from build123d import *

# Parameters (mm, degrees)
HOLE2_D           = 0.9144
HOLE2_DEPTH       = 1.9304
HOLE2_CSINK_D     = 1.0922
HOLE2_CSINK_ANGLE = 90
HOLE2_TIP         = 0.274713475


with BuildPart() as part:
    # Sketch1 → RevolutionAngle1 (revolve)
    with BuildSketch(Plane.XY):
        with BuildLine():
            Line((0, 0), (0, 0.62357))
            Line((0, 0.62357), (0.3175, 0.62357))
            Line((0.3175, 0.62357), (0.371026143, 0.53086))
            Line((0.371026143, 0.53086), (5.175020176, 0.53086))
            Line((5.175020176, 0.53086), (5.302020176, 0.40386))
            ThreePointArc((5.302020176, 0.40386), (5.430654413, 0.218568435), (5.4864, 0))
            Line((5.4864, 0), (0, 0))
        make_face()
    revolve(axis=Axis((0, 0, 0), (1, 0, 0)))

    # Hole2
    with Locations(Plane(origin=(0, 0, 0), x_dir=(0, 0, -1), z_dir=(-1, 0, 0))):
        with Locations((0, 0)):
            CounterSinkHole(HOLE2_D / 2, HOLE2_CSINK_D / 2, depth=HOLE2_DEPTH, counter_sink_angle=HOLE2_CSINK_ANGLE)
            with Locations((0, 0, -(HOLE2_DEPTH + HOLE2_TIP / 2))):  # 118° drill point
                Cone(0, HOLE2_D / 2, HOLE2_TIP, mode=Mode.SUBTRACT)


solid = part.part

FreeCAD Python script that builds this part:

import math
import FreeCAD as App
import Part
import Sketcher
from FreeCAD import Vector
Q = App.Units.Quantity

doc = App.newDocument("Part")
body = doc.addObject("PartDesign::Body", "Body")

# Sketch on XY plane
sketch1 = doc.addObject("Sketcher::SketchObject", "Sketch")
body.addObject(sketch1)
sketch1.AttachmentSupport = (doc.XY_Plane, [""])
sketch1.MapMode = "FlatFace"
sketch1.addGeometry([
    Part.LineSegment(Vector(0, 0.62, 0), Vector(0, 0, 0)),  # 0
    Part.LineSegment(Vector(0, 0, 0), Vector(5.49, 0, 0)),  # 1
    Part.ArcOfCircle(Part.Circle(Vector(4.85, -0.05, 0), Vector(0, 0, 1), 0.64), math.radians(4), math.radians(45)),  # 2
    Part.LineSegment(Vector(5.3, 0.4, 0), Vector(5.18, 0.53, 0)),  # 3
    Part.LineSegment(Vector(5.18, 0.53, 0), Vector(0.37, 0.53, 0)),  # 4
    Part.LineSegment(Vector(0.37, 0.53, 0), Vector(0.32, 0.62, 0)),  # 5
    Part.LineSegment(Vector(0.32, 0.62, 0), Vector(0, 0.62, 0)),  # 6
], False)
sketch1.addConstraint([
    Sketcher.Constraint("Coincident", 0, 2, 1, 1),
    Sketcher.Constraint("Coincident", 1, 2, 2, 1),
    Sketcher.Constraint("Tangent", 2, 2, 3, 1),
    Sketcher.Constraint("Coincident", 3, 2, 4, 1),
    Sketcher.Constraint("Coincident", 4, 2, 5, 1),
    Sketcher.Constraint("Coincident", 5, 2, 6, 1),
    Sketcher.Constraint("Coincident", 6, 2, 0, 1),
    Sketcher.Constraint("Vertical", 0),
    Sketcher.Constraint("Horizontal", 1),
    Sketcher.Constraint("Horizontal", 4),
    Sketcher.Constraint("Horizontal", 6),
    Sketcher.Constraint("Coincident", 0, 2, -1, 1),
    Sketcher.Constraint("Angle", 3, Q("135 deg")),
    Sketcher.Constraint("Angle", 5, Q("120 deg")),
    Sketcher.Constraint("Radius", 2, Q("0.025 in")),
    Sketcher.Constraint("DistanceX", 1, 1, 1, 2, Q("0.216 in")),
    Sketcher.Constraint("DistanceX", 6, 2, 6, 1, Q("0.0125 in")),
    Sketcher.Constraint("DistanceX", 3, 2, 2, 2, Q("0.005 in")),
    Sketcher.Constraint("DistanceY", -1, 1, 2, 2, Q("0.0159 in")),
    Sketcher.Constraint("DistanceY", 0, 2, 0, 1, Q("0.62357 mm")),
])
revolution = doc.addObject("PartDesign::Revolution", "Revolution")
body.addObject(revolution)
revolution.Profile = sketch1
revolution.ReferenceAxis = (sketch1, ["H_Axis"])
revolution.Angle = 360

# Sketch on YZ plane
sketch2 = doc.addObject("Sketcher::SketchObject", "Sketch001")
body.addObject(sketch2)
sketch2.AttachmentSupport = (doc.YZ_Plane, [""])
sketch2.MapMode = "FlatFace"
sketch2.addGeometry(Part.Circle(Vector(0, 0, 0), Vector(0, 0, 1), 0.46), False)
sketch2.addConstraint([
    Sketcher.Constraint("Coincident", 0, 3, -1, 1),
    Sketcher.Constraint("Diameter", 0, Q("0.036 in")),
])
doc.recompute()
hole = doc.addObject("PartDesign::Hole", "Hole")
body.addObject(hole)
hole.Profile = sketch2
hole.ThreadType = "None"
hole.Diameter = Q("0.036 in")
hole.DepthType = "Dimension"
hole.Depth = Q("0.076 in")
hole.DrillPoint = "Angled"
hole.DrillPointAngle = 118
hole.HoleCutType = "Countersink"
hole.HoleCutDiameter = Q("0.043 in")
hole.HoleCutCountersinkAngle = 90
hole.Reversed = True

doc.recompute()
